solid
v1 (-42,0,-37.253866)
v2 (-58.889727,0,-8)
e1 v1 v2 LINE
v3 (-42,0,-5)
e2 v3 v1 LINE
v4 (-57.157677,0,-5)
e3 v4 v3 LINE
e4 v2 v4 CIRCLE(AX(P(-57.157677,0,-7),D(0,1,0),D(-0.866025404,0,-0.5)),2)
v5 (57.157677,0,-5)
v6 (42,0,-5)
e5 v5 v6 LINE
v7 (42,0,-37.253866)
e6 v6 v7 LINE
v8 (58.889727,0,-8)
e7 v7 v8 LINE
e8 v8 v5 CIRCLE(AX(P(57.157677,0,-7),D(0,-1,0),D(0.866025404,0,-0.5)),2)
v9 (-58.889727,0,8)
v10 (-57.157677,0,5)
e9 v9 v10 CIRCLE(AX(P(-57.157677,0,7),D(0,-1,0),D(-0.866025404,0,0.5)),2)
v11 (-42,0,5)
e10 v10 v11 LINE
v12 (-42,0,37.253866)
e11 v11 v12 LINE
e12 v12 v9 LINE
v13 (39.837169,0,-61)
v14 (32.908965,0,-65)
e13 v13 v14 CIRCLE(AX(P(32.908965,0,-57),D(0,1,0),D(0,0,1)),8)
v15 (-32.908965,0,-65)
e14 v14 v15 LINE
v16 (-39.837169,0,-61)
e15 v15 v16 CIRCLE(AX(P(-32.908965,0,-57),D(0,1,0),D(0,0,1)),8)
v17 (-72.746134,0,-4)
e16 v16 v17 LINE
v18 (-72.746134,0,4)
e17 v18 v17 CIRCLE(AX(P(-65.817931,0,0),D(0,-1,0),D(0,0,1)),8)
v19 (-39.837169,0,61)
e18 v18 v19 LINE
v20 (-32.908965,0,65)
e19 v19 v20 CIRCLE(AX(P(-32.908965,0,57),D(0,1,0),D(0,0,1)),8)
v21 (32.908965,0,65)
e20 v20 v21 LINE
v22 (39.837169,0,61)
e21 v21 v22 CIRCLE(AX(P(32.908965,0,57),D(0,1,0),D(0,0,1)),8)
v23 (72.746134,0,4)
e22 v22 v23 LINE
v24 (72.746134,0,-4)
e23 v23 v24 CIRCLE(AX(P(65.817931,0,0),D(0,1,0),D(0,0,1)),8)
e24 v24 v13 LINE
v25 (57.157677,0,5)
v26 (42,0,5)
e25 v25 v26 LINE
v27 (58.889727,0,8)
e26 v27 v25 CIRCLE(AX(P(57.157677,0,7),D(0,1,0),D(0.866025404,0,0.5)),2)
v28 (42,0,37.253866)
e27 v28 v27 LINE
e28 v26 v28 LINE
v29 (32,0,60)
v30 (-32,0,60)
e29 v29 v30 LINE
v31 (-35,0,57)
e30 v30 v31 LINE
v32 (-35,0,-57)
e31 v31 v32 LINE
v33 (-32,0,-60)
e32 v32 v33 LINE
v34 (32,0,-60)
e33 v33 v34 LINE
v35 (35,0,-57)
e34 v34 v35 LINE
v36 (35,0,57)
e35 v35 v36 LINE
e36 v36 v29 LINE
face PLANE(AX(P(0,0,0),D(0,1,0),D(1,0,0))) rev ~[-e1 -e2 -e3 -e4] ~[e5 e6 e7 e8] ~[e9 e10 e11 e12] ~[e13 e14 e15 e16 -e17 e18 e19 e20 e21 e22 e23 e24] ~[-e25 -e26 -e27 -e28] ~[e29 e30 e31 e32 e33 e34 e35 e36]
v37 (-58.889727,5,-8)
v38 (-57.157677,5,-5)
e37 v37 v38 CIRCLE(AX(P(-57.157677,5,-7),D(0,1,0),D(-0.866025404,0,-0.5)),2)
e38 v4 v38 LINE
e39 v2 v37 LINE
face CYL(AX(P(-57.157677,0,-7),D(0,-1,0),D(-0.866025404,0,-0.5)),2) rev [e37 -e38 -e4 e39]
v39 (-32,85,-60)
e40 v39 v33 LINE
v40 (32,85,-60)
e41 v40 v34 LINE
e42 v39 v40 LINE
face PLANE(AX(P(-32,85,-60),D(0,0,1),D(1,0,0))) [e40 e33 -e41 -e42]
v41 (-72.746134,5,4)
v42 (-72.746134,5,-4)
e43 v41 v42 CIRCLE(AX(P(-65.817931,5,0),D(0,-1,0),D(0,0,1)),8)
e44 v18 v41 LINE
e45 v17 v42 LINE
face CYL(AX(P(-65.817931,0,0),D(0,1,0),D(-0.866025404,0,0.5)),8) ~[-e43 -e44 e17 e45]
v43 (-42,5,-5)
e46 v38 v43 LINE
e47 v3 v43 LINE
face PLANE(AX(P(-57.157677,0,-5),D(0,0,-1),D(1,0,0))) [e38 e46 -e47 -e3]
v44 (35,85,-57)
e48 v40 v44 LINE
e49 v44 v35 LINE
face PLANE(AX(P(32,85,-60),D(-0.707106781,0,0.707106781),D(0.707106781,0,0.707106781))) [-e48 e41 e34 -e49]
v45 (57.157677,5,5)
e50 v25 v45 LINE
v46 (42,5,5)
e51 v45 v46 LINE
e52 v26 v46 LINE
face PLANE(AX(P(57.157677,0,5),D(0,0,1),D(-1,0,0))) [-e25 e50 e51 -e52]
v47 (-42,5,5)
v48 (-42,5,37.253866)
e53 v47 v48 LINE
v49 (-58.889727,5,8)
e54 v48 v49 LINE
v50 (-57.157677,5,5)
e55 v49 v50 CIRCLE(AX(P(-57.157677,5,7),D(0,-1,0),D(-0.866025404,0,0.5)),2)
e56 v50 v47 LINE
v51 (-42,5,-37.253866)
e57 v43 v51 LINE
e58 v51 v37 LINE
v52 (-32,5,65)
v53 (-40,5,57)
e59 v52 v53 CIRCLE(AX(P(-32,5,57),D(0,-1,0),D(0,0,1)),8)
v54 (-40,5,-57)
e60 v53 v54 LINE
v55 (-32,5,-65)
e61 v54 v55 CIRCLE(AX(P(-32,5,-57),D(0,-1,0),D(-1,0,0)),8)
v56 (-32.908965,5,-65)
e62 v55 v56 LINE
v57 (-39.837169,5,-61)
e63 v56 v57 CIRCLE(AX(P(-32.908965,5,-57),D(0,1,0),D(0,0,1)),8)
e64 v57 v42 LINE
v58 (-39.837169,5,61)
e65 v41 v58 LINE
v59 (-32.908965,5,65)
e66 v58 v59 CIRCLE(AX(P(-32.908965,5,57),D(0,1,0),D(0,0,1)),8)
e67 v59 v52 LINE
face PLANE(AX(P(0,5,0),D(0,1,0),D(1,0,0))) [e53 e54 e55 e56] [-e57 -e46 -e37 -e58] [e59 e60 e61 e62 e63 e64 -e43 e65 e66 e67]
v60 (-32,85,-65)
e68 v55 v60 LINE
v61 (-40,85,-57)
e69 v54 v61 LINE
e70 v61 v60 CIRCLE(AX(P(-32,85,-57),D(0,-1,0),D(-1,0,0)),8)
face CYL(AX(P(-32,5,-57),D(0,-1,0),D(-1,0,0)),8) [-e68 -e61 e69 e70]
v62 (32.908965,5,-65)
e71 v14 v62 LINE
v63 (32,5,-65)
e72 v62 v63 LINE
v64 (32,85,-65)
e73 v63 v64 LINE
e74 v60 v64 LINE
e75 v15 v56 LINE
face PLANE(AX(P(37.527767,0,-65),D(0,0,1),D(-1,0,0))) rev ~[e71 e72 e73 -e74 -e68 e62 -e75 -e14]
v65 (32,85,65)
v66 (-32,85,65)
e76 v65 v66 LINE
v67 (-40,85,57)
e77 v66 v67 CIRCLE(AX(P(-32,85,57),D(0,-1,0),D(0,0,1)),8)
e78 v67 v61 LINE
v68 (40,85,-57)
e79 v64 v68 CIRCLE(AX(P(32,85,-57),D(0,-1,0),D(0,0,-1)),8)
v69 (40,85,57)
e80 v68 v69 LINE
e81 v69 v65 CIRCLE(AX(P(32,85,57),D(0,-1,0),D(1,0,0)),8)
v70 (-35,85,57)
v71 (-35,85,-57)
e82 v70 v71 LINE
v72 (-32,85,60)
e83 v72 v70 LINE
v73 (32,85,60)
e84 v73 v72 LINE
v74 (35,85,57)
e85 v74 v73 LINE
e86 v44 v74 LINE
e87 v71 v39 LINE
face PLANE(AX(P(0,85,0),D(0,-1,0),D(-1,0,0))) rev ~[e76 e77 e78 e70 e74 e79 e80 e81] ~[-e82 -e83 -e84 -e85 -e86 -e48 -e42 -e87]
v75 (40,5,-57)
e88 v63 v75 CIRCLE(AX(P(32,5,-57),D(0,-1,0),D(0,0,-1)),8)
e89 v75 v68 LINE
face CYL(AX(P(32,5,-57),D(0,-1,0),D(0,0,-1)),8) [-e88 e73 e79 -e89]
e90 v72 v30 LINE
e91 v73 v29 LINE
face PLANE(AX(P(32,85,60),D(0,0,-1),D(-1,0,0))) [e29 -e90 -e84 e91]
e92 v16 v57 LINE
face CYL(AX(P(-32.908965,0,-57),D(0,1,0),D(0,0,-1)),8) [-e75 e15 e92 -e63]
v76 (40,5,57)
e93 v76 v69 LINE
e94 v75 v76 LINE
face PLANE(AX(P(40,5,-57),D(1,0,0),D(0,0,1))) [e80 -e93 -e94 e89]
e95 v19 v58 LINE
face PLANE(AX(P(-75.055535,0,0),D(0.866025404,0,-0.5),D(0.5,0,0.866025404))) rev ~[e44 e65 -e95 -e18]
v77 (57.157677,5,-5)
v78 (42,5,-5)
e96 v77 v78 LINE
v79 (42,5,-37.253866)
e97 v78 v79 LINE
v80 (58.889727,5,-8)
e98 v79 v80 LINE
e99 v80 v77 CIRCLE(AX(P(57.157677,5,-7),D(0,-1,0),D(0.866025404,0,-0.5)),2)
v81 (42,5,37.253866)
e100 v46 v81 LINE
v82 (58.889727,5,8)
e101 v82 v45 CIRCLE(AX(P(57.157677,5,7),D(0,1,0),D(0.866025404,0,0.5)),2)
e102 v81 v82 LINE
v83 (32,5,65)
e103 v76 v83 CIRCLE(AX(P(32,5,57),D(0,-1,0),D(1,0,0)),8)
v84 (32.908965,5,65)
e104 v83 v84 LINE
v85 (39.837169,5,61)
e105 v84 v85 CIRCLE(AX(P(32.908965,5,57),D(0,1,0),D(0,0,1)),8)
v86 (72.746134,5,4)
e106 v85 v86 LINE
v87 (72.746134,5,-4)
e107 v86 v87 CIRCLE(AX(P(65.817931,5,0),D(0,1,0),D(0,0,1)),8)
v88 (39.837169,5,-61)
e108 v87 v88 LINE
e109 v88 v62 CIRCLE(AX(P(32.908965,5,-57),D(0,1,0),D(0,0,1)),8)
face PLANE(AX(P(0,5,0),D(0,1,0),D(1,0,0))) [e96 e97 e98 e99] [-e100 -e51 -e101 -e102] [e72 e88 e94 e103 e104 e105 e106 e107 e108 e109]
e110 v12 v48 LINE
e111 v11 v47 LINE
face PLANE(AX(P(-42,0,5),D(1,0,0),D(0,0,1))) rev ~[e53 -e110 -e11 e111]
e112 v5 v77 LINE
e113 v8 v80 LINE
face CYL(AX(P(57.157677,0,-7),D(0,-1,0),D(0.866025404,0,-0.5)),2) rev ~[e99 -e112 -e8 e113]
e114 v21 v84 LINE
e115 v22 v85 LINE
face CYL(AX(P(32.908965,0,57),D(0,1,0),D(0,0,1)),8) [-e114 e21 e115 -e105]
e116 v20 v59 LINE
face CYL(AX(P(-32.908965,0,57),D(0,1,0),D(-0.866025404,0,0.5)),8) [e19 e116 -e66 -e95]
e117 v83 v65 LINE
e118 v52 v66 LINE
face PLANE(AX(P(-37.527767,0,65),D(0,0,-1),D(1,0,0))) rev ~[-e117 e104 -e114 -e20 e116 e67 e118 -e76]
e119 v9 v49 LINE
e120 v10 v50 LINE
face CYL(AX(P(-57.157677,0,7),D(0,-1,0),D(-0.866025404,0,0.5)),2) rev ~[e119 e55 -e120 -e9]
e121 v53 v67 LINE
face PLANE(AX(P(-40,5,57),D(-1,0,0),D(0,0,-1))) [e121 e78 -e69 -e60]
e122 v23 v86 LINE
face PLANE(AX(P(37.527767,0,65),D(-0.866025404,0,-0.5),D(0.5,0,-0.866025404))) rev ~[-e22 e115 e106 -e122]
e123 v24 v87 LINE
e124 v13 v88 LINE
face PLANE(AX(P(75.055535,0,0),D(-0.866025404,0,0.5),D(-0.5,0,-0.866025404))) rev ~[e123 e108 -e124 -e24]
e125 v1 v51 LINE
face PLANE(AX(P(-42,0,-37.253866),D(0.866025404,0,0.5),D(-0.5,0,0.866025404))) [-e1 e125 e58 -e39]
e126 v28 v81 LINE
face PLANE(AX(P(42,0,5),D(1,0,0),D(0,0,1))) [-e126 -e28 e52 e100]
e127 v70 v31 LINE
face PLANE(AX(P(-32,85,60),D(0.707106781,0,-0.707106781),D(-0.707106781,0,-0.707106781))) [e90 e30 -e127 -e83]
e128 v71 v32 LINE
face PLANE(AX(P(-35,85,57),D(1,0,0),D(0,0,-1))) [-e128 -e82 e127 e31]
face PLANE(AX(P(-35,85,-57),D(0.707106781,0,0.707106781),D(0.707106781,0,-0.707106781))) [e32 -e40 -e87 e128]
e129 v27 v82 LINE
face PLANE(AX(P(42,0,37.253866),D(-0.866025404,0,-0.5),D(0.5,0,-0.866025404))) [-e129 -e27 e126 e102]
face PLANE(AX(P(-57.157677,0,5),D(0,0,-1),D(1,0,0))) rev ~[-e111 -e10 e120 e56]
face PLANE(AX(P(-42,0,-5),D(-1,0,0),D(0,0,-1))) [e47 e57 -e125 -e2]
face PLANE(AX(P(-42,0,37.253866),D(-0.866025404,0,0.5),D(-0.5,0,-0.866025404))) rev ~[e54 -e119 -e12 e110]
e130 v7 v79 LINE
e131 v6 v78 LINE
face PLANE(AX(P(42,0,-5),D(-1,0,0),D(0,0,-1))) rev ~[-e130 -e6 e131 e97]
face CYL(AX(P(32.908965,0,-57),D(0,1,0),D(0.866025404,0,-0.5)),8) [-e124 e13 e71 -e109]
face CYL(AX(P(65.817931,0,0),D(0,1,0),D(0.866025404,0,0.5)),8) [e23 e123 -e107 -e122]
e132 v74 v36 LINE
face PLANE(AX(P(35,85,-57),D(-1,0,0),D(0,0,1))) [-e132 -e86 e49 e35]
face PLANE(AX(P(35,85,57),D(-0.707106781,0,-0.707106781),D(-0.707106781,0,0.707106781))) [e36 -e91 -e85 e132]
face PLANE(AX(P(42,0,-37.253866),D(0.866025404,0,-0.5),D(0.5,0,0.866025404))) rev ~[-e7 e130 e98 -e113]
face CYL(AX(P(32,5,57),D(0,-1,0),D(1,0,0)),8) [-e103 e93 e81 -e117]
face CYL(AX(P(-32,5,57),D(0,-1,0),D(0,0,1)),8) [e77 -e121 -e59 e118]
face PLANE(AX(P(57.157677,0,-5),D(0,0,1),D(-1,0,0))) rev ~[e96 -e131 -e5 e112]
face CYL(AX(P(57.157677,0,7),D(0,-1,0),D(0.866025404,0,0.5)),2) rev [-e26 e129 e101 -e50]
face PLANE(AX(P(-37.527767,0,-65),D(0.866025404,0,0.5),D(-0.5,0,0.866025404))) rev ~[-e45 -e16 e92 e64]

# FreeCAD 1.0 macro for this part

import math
import FreeCAD as App
import Part
import Sketcher
from FreeCAD import Vector
Q = App.Units.Quantity


def edges_at(feature, points):
    """Names of the edges that pass closest to the given points."""
    edges = feature.Shape.Edges
    near = lambda p: min(range(len(edges)), key=lambda i: edges[i].distToShape(Part.Vertex(*p))[0])
    return sorted({f"Edge{near(p) + 1}" for p in points})

doc = App.newDocument("Part")
body = doc.addObject("PartDesign::Body", "Body")

# Sketch on XZ plane
sketch1 = doc.addObject("Sketcher::SketchObject", "Sketch")
body.addObject(sketch1)
sketch1.AttachmentSupport = (doc.XZ_Plane, [""])
sketch1.MapMode = "FlatFace"
sketch1.addGeometry(Part.LineSegment(Vector(-75, 0, 0), Vector(-38, 65, 0)), False)
sketch1.addGeometry(Part.LineSegment(Vector(-38, 65, 0), Vector(38, 65, 0)), False)
sketch1.addGeometry(Part.LineSegment(Vector(38, 65, 0), Vector(75, 0, 0)), False)
sketch1.addGeometry(Part.LineSegment(Vector(75, 0, 0), Vector(38, -65, 0)), False)
sketch1.addGeometry(Part.LineSegment(Vector(38, -65, 0), Vector(-38, -65, 0)), False)
sketch1.addGeometry(Part.LineSegment(Vector(-38, -65, 0), Vector(-75, 0, 0)), False)
sketch1.addConstraint(Sketcher.Constraint("Coincident", 0, 2, 1, 1))
sketch1.addConstraint(Sketcher.Constraint("Coincident", 1, 2, 2, 1))
sketch1.addConstraint(Sketcher.Constraint("Coincident", 2, 2, 3, 1))
sketch1.addConstraint(Sketcher.Constraint("Coincident", 3, 2, 4, 1))
sketch1.addConstraint(Sketcher.Constraint("Coincident", 4, 2, 5, 1))
sketch1.addConstraint(Sketcher.Constraint("Coincident", 5, 2, 0, 1))
sketch1.addConstraint(Sketcher.Constraint("Horizontal", 1))
sketch1.addConstraint(Sketcher.Constraint("Horizontal", 4))
sketch1.addConstraint(Sketcher.Constraint("Symmetric", 0, 2, 3, 2, -1, 1))
sketch1.addConstraint(Sketcher.Constraint("Symmetric", 2, 2, 5, 2, -1, 1))
sketch1.addConstraint(Sketcher.Constraint("PointOnObject", 2, 2, -1))
sketch1.addConstraint(Sketcher.Constraint("Parallel", 2, 5))
sketch1.addConstraint(Sketcher.Constraint("Vertical", 1, 2, 3, 2))
sketch1.addConstraint(Sketcher.Constraint("Angle", 0, Q("60 deg")))
sketch1.addConstraint(Sketcher.Constraint("DistanceY", -1, 1, 0, 2, Q("65 mm")))
sketch1.addConstraint(Sketcher.Constraint("DistanceX", 1, 1, 1, 2, Q("75.055535 mm")))
pad1 = doc.addObject("PartDesign::Pad", "Pad")
body.addObject(pad1)
pad1.Profile = sketch1
pad1.Length = 5
pad1.Reversed = True
doc.recompute()

fillet = doc.addObject("PartDesign::Fillet", "Fillet")
body.addObject(fillet)
fillet.Base = (pad1, edges_at(pad1, [
    (-37.528, 2.5, -65),
    (37.528, 2.5, -65),
    (75.056, 2.5, 0),
    (37.528, 2.5, 65),
    (-37.528, 2.5, 65),
    (-75.056, 2.5, 0),
]))
fillet.Radius = 8

# Sketch on XZ plane
sketch2 = doc.addObject("Sketcher::SketchObject", "Sketch001")
body.addObject(sketch2)
sketch2.AttachmentSupport = (doc.XZ_Plane, [""])
sketch2.MapMode = "FlatFace"
sketch2.AttachmentOffset = App.Placement(Vector(0, 0, -5), App.Rotation())
sketch2.addGeometry(Part.LineSegment(Vector(32, -65, 0), Vector(-32, -65, 0)), False)
sketch2.addGeometry(Part.ArcOfCircle(Part.Circle(Vector(-32, -57, 0), Vector(0, 0, 1), 8), math.radians(-180), math.radians(-90)), False)
sketch2.addGeometry(Part.LineSegment(Vector(-40, -57, 0), Vector(-40, 57, 0)), False)
sketch2.addGeometry(Part.ArcOfCircle(Part.Circle(Vector(-32, 57, 0), Vector(0, 0, 1), 8), math.radians(90), math.radians(180)), False)
sketch2.addGeometry(Part.LineSegment(Vector(-32, 65, 0), Vector(32, 65, 0)), False)
sketch2.addGeometry(Part.ArcOfCircle(Part.Circle(Vector(32, 57, 0), Vector(0, 0, 1), 8), math.radians(0), math.radians(90)), False)
sketch2.addGeometry(Part.LineSegment(Vector(40, 57, 0), Vector(40, -57, 0)), False)
sketch2.addGeometry(Part.ArcOfCircle(Part.Circle(Vector(32, -57, 0), Vector(0, 0, 1), 8), math.radians(-90), math.radians(0)), False)
sketch2.addConstraint(Sketcher.Constraint("Tangent", 0, 2, 1, 2))
sketch2.addConstraint(Sketcher.Constraint("Tangent", 1, 1, 2, 1))
sketch2.addConstraint(Sketcher.Constraint("Tangent", 2, 2, 3, 2))
sketch2.addConstraint(Sketcher.Constraint("Tangent", 3, 1, 4, 1))
sketch2.addConstraint(Sketcher.Constraint("Tangent", 4, 2, 5, 2))
sketch2.addConstraint(Sketcher.Constraint("Tangent", 5, 1, 6, 1))
sketch2.addConstraint(Sketcher.Constraint("Tangent", 6, 2, 7, 2))
sketch2.addConstraint(Sketcher.Constraint("Tangent", 7, 1, 0, 1))
sketch2.addConstraint(Sketcher.Constraint("Horizontal", 0))
sketch2.addConstraint(Sketcher.Constraint("Vertical", 2))
sketch2.addConstraint(Sketcher.Constraint("Horizontal", 4))
sketch2.addConstraint(Sketcher.Constraint("Vertical", 6))
sketch2.addConstraint(Sketcher.Constraint("Equal", 1, 3))
sketch2.addConstraint(Sketcher.Constraint("Equal", 3, 5))
sketch2.addConstraint(Sketcher.Constraint("Equal", 5, 7))
sketch2.addConstraint(Sketcher.Constraint("Symmetric", 1, 3, 5, 3, -1, 1))
sketch2.addConstraint(Sketcher.Constraint("Radius", 1, Q("8 mm")))
sketch2.addConstraint(Sketcher.Constraint("DistanceX", 0, 2, 0, 1, Q("64 mm")))
sketch2.addConstraint(Sketcher.Constraint("DistanceY", 2, 1, 2, 2, Q("114 mm")))
pad2 = doc.addObject("PartDesign::Pad", "Pad001")
body.addObject(pad2)
pad2.Profile = sketch2
pad2.Length = 80
pad2.Reversed = True

# Sketch on XZ plane
sketch3 = doc.addObject("Sketcher::SketchObject", "Sketch002")
body.addObject(sketch3)
sketch3.AttachmentSupport = (doc.XZ_Plane, [""])
sketch3.MapMode = "FlatFace"
sketch3.AttachmentOffset = App.Placement(Vector(0, 0, -85), App.Rotation())
sketch3.addGeometry(Part.LineSegment(Vector(-32, -60, 0), Vector(-35, -57, 0)), False)
sketch3.addGeometry(Part.LineSegment(Vector(-35, -57, 0), Vector(-35, 57, 0)), False)
sketch3.addGeometry(Part.LineSegment(Vector(-35, 57, 0), Vector(-32, 60, 0)), False)
sketch3.addGeometry(Part.LineSegment(Vector(-32, 60, 0), Vector(32, 60, 0)), False)
sketch3.addGeometry(Part.LineSegment(Vector(32, 60, 0), Vector(35, 57, 0)), False)
sketch3.addGeometry(Part.LineSegment(Vector(35, 57, 0), Vector(35, -57, 0)), False)
sketch3.addGeometry(Part.LineSegment(Vector(35, -57, 0), Vector(32, -60, 0)), False)
sketch3.addGeometry(Part.LineSegment(Vector(32, -60, 0), Vector(-32, -60, 0)), False)
sketch3.addConstraint(Sketcher.Constraint("Coincident", 0, 2, 1, 1))
sketch3.addConstraint(Sketcher.Constraint("Coincident", 1, 2, 2, 1))
sketch3.addConstraint(Sketcher.Constraint("Coincident", 2, 2, 3, 1))
sketch3.addConstraint(Sketcher.Constraint("Coincident", 3, 2, 4, 1))
sketch3.addConstraint(Sketcher.Constraint("Coincident", 4, 2, 5, 1))
sketch3.addConstraint(Sketcher.Constraint("Coincident", 5, 2, 6, 1))
sketch3.addConstraint(Sketcher.Constraint("Coincident", 6, 2, 7, 1))
sketch3.addConstraint(Sketcher.Constraint("Coincident", 7, 2, 0, 1))
sketch3.addConstraint(Sketcher.Constraint("Vertical", 1))
sketch3.addConstraint(Sketcher.Constraint("Horizontal", 3))
sketch3.addConstraint(Sketcher.Constraint("Vertical", 5))
sketch3.addConstraint(Sketcher.Constraint("Horizontal", 7))
sketch3.addConstraint(Sketcher.Constraint("Symmetric", 0, 2, 4, 2, -1, 1))
sketch3.addConstraint(Sketcher.Constraint("Symmetric", 2, 2, 6, 2, -1, 1))
sketch3.addConstraint(Sketcher.Constraint("Perpendicular", 0, 2))
sketch3.addConstraint(Sketcher.Constraint("Perpendicular", 2, 4))
sketch3.addConstraint(Sketcher.Constraint("Perpendicular", 4, 6))
sketch3.addConstraint(Sketcher.Constraint("Horizontal", 1, 2, 4, 2))
sketch3.addConstraint(Sketcher.Constraint("Vertical", 3, 2, 6, 2))
sketch3.addConstraint(Sketcher.Constraint("DistanceX", 3, 1, 3, 2, Q("64 mm")))
sketch3.addConstraint(Sketcher.Constraint("DistanceY", 1, 1, 1, 2, Q("114 mm")))
sketch3.addConstraint(Sketcher.Constraint("DistanceX", 0, 2, -1, 1, Q("35 mm")))
pocket1 = doc.addObject("PartDesign::Pocket", "Pocket")
body.addObject(pocket1)
pocket1.Profile = sketch3
pocket1.Length = 85
pocket1.Reversed = True

# Sketch on XZ plane
sketch4 = doc.addObject("Sketcher::SketchObject", "Sketch003")
body.addObject(sketch4)
sketch4.AttachmentSupport = (doc.XZ_Plane, [""])
sketch4.MapMode = "FlatFace"
sketch4.addGeometry(Part.ArcOfCircle(Part.Circle(Vector(57.2, -7, 0), Vector(0, 0, 1), 2), math.radians(-30), math.radians(90)), False)
sketch4.addGeometry(Part.LineSegment(Vector(58.9, -8, 0), Vector(42, -37.3, 0)), False)
sketch4.addGeometry(Part.LineSegment(Vector(42, -37.3, 0), Vector(42, -5, 0)), False)
sketch4.addGeometry(Part.LineSegment(Vector(42, -5, 0), Vector(57.2, -5, 0)), False)
sketch4.addGeometry(Part.LineSegment(Vector(42, 37.3, 0), Vector(58.9, 8, 0)), False)
sketch4.addGeometry(Part.ArcOfCircle(Part.Circle(Vector(57.2, 7, 0), Vector(0, 0, 1), 2), math.radians(-90), math.radians(30)), False)
sketch4.addGeometry(Part.LineSegment(Vector(57.2, 5, 0), Vector(42, 5, 0)), False)
sketch4.addGeometry(Part.LineSegment(Vector(42, 5, 0), Vector(42, 37.3, 0)), False)
sketch4.addGeometry(Part.ArcOfCircle(Part.Circle(Vector(-57.2, 7, 0), Vector(0, 0, 1), 2), math.radians(150), math.radians(270)), False)
sketch4.addGeometry(Part.LineSegment(Vector(-58.9, 8, 0), Vector(-42, 37.3, 0)), False)
sketch4.addGeometry(Part.LineSegment(Vector(-42, 37.3, 0), Vector(-42, 5, 0)), False)
sketch4.addGeometry(Part.LineSegment(Vector(-42, 5, 0), Vector(-57.2, 5, 0)), False)
sketch4.addGeometry(Part.LineSegment(Vector(-42, -37.3, 0), Vector(-58.9, -8, 0)), False)
sketch4.addGeometry(Part.ArcOfCircle(Part.Circle(Vector(-57.2, -7, 0), Vector(0, 0, 1), 2), math.radians(90), math.radians(210)), False)
sketch4.addGeometry(Part.LineSegment(Vector(-57.2, -5, 0), Vector(-42, -5, 0)), False)
sketch4.addGeometry(Part.LineSegment(Vector(-42, -5, 0), Vector(-42, -37.3, 0)), False)
sketch4.addConstraint(Sketcher.Constraint("Tangent", 0, 1, 1, 1))
sketch4.addConstraint(Sketcher.Constraint("Coincident", 1, 2, 2, 1))
sketch4.addConstraint(Sketcher.Constraint("Coincident", 2, 2, 3, 1))
sketch4.addConstraint(Sketcher.Constraint("Tangent", 3, 2, 0, 2))
sketch4.addConstraint(Sketcher.Constraint("Tangent", 4, 2, 5, 2))
sketch4.addConstraint(Sketcher.Constraint("Tangent", 5, 1, 6, 1))
sketch4.addConstraint(Sketcher.Constraint("Coincident", 6, 2, 7, 1))
sketch4.addConstraint(Sketcher.Constraint("Coincident", 7, 2, 4, 1))
sketch4.addConstraint(Sketcher.Constraint("Tangent", 8, 1, 9, 1))
sketch4.addConstraint(Sketcher.Constraint("Coincident", 9, 2, 10, 1))
sketch4.addConstraint(Sketcher.Constraint("Coincident", 10, 2, 11, 1))
sketch4.addConstraint(Sketcher.Constraint("Tangent", 11, 2, 8, 2))
sketch4.addConstraint(Sketcher.Constraint("Tangent", 12, 2, 13, 2))
sketch4.addConstraint(Sketcher.Constraint("Tangent", 13, 1, 14, 1))
sketch4.addConstraint(Sketcher.Constraint("Coincident", 14, 2, 15, 1))
sketch4.addConstraint(Sketcher.Constraint("Coincident", 15, 2, 12, 1))
sketch4.addConstraint(Sketcher.Constraint("Vertical", 2))
sketch4.addConstraint(Sketcher.Constraint("Horizontal", 3))
sketch4.addConstraint(Sketcher.Constraint("Horizontal", 6))
sketch4.addConstraint(Sketcher.Constraint("Vertical", 7))
sketch4.addConstraint(Sketcher.Constraint("Vertical", 10))
sketch4.addConstraint(Sketcher.Constraint("Horizontal", 11))
sketch4.addConstraint(Sketcher.Constraint("Horizontal", 14))
sketch4.addConstraint(Sketcher.Constraint("Vertical", 15))
sketch4.addConstraint(Sketcher.Constraint("Equal", 0, 5))
sketch4.addConstraint(Sketcher.Constraint("Equal", 5, 8))
sketch4.addConstraint(Sketcher.Constraint("Equal", 8, 13))
sketch4.addConstraint(Sketcher.Constraint("Symmetric", 0, 3, 8, 3, -1, 1))
sketch4.addConstraint(Sketcher.Constraint("Symmetric", 5, 3, 13, 3, -1, 1))
sketch4.addConstraint(Sketcher.Constraint("Symmetric", 1, 2, 9, 2, -1, 1))
sketch4.addConstraint(Sketcher.Constraint("Symmetric", 7, 2, 15, 2, -1, 1))
sketch4.addConstraint(Sketcher.Constraint("Symmetric", 5, 3, 8, 3, -2))
sketch4.addConstraint(Sketcher.Constraint("Symmetric", 7, 2, 9, 2, -2))
sketch4.addConstraint(Sketcher.Constraint("Radius", 0, Q("2 mm")))
sketch4.addConstraint(Sketcher.Constraint("Angle", 1, Q("-120 deg")))
sketch4.addConstraint(Sketcher.Constraint("DistanceY", 0, 3, -1, 1, Q("7 mm")))
sketch4.addConstraint(Sketcher.Constraint("DistanceX", -1, 1, 1, 2, Q("42 mm")))
sketch4.addConstraint(Sketcher.Constraint("DistanceX", 3, 1, 3, 2, Q("15.157677 mm")))
pocket2 = doc.addObject("PartDesign::Pocket", "Pocket001")
body.addObject(pocket2)
pocket2.Profile = sketch4
pocket2.Length = 5

doc.recompute()
